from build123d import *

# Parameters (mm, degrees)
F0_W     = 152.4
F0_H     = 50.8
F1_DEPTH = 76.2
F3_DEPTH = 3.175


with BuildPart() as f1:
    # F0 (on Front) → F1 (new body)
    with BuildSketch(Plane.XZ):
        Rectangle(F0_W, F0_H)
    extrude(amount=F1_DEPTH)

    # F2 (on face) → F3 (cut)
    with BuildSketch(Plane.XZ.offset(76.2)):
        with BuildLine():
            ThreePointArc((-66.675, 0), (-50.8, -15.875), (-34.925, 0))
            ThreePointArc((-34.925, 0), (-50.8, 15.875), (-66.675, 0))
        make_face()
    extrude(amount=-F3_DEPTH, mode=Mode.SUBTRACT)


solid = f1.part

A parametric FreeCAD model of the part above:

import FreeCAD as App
import Part
import Sketcher
from FreeCAD import Vector
Q = App.Units.Quantity

doc = App.newDocument("Part")
body = doc.addObject("PartDesign::Body", "Body")

sketch1 = doc.addObject("Sketcher::SketchObject", "Sketch")
body.addObject(sketch1)
sketch1.AttachmentSupport = (doc.XZ_Plane, [""])
sketch1.MapMode = "FlatFace"
sketch1.addGeometry([
    Part.LineSegment(Vector(-76.2, 25.4, 0), Vector(-76.2, -25.4, 0)),
    Part.LineSegment(Vector(-76.2, -25.4, 0), Vector(76.2, -25.4, 0)),
    Part.LineSegment(Vector(76.2, -25.4, 0), Vector(76.2, 25.4, 0)),
    Part.LineSegment(Vector(76.2, 25.4, 0), Vector(-76.2, 25.4, 0)),
], False)
sketch1.addConstraint([
    Sketcher.Constraint("Coincident", 0, 2, 1, 1),
    Sketcher.Constraint("Coincident", 1, 2, 2, 1),
    Sketcher.Constraint("Coincident", 2, 2, 3, 1),
    Sketcher.Constraint("Coincident", 3, 2, 0, 1),
    Sketcher.Constraint("Vertical", 0),
    Sketcher.Constraint("Horizontal", 1),
    Sketcher.Constraint("Vertical", 2),
    Sketcher.Constraint("Horizontal", 3),
    Sketcher.Constraint("Symmetric", 0, 2, 2, 2, -1, 1),
    Sketcher.Constraint("DistanceX", 1, 1, 1, 2, Q("6 in")),
    Sketcher.Constraint("DistanceY", 0, 2, 0, 1, Q("2 in")),
])
pad1 = doc.addObject("PartDesign::Pad", "Pad")
body.addObject(pad1)
pad1.Profile = sketch1
pad1.Length = Q("3 in")

sketch2 = doc.addObject("Sketcher::SketchObject", "Sketch001")
body.addObject(sketch2)
sketch2.AttachmentSupport = (doc.XZ_Plane, [""])
sketch2.MapMode = "FlatFace"
sketch2.AttachmentOffset = App.Placement(Vector(0, 0, 3 * 25.4), App.Rotation())
sketch2.addGeometry(Part.Circle(Vector(-50.8, 0, 0), Vector(0, 0, 1), 15.875), False)
sketch2.addConstraint([
    Sketcher.Constraint("PointOnObject", 0, 3, -1),
    Sketcher.Constraint("Diameter", 0, Q("1.25 in")),
    Sketcher.Constraint("DistanceX", 0, 3, -1, 1, Q("2 in")),
])
pocket1 = doc.addObject("PartDesign::Pocket", "Pocket")
body.addObject(pocket1)
pocket1.Profile = sketch2
pocket1.Length = Q("0.125 in")

doc.recompute()
